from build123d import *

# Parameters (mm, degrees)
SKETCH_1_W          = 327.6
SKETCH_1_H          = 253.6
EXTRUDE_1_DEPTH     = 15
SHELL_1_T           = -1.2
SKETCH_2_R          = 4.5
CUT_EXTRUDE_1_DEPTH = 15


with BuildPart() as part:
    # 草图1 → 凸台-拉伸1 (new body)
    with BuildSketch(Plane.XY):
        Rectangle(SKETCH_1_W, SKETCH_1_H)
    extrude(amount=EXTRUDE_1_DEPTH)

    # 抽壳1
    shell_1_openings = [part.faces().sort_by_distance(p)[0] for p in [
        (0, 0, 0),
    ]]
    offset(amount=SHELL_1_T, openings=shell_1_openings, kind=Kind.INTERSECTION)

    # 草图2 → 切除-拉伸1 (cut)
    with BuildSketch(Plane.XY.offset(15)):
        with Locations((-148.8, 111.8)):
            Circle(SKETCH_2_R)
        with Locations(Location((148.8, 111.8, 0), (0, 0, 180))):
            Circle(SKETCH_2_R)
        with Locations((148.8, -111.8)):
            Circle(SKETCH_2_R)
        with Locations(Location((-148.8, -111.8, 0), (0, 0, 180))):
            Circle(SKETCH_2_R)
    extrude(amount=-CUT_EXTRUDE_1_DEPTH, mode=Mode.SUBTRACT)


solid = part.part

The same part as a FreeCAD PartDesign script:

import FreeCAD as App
import Part
import Sketcher

V = App.Vector


def faces_at(feature, points):
    """Names of the faces that lie closest to the given points."""
    faces = feature.Shape.Faces
    near = lambda p: min(range(len(faces)), key=lambda i: faces[i].distToShape(Part.Vertex(*p))[0])
    return sorted({f"Face{near(p) + 1}" for p in points})

doc = App.newDocument("Part")
body = doc.addObject("PartDesign::Body", "Body")

sketch1 = body.newObject("Sketcher::SketchObject", "Sketch")
sketch1.AttachmentSupport = (doc.getObject("XY_Plane"), [""])
sketch1.MapMode = "FlatFace"
sketch1.addGeometry([
    Part.LineSegment(V(-163.8, 126.8, 0), V(-163.8, -126.8, 0)),
    Part.LineSegment(V(-163.8, -126.8, 0), V(163.8, -126.8, 0)),
    Part.LineSegment(V(163.8, -126.8, 0), V(163.8, 126.8, 0)),
    Part.LineSegment(V(163.8, 126.8, 0), V(-163.8, 126.8, 0)),
], False)
sketch1.addConstraint([
    Sketcher.Constraint("Coincident", 0, 2, 1, 1),
    Sketcher.Constraint("Coincident", 1, 2, 2, 1),
    Sketcher.Constraint("Coincident", 2, 2, 3, 1),
    Sketcher.Constraint("Coincident", 3, 2, 0, 1),
    Sketcher.Constraint("Vertical", 0),
    Sketcher.Constraint("Horizontal", 1),
    Sketcher.Constraint("Vertical", 2),
    Sketcher.Constraint("Horizontal", 3),
    Sketcher.Constraint("Symmetric", 0, 2, 2, 2, -1, 1),
    Sketcher.Constraint("DistanceX", 1, 1, 1, 2, 327.6),
    Sketcher.Constraint("DistanceY", 0, 2, 0, 1, 253.6),
])
pad1 = body.newObject("PartDesign::Pad", "Pad")
pad1.Profile = sketch1
pad1.Length = 15
doc.recompute()

thickness = body.newObject("PartDesign::Thickness", "Thickness")
thickness.Base = (pad1, faces_at(pad1, [(0, 0, 0)]))
thickness.Value = 1.2
thickness.Reversed = True
thickness.Join = "Intersection"

sketch2 = body.newObject("Sketcher::SketchObject", "Sketch001")
sketch2.AttachmentSupport = (doc.getObject("XY_Plane"), [""])
sketch2.MapMode = "FlatFace"
sketch2.AttachmentOffset = App.Placement(V(0, 0, 15), App.Rotation())
sketch2.addGeometry([
    Part.Circle(V(-148.8, 111.8, 0), V(0, 0, 1), 4.5),
    Part.Circle(V(148.8, 111.8, 0), V(0, 0, 1), 4.5),
    Part.Circle(V(148.8, -111.8, 0), V(0, 0, 1), 4.5),
    Part.Circle(V(-148.8, -111.8, 0), V(0, 0, 1), 4.5),
], False)
sketch2.addConstraint([
    Sketcher.Constraint("Equal", 0, 1),
    Sketcher.Constraint("Equal", 1, 2),
    Sketcher.Constraint("Equal", 2, 3),
    Sketcher.Constraint("Symmetric", 0, 3, 2, 3, -1, 1),
    Sketcher.Constraint("Symmetric", 1, 3, 3, 3, -1, 1),
    Sketcher.Constraint("Symmetric", 0, 3, 1, 3, -2),
    Sketcher.Constraint("Diameter", 0, 9.0),
    Sketcher.Constraint("DistanceX", 0, 3, -1, 1, 148.8),
    Sketcher.Constraint("DistanceY", -1, 1, 0, 3, 111.8),
])
pocket1 = body.newObject("PartDesign::Pocket", "Pocket")
pocket1.Profile = sketch2
pocket1.Length = 15

doc.recompute()
